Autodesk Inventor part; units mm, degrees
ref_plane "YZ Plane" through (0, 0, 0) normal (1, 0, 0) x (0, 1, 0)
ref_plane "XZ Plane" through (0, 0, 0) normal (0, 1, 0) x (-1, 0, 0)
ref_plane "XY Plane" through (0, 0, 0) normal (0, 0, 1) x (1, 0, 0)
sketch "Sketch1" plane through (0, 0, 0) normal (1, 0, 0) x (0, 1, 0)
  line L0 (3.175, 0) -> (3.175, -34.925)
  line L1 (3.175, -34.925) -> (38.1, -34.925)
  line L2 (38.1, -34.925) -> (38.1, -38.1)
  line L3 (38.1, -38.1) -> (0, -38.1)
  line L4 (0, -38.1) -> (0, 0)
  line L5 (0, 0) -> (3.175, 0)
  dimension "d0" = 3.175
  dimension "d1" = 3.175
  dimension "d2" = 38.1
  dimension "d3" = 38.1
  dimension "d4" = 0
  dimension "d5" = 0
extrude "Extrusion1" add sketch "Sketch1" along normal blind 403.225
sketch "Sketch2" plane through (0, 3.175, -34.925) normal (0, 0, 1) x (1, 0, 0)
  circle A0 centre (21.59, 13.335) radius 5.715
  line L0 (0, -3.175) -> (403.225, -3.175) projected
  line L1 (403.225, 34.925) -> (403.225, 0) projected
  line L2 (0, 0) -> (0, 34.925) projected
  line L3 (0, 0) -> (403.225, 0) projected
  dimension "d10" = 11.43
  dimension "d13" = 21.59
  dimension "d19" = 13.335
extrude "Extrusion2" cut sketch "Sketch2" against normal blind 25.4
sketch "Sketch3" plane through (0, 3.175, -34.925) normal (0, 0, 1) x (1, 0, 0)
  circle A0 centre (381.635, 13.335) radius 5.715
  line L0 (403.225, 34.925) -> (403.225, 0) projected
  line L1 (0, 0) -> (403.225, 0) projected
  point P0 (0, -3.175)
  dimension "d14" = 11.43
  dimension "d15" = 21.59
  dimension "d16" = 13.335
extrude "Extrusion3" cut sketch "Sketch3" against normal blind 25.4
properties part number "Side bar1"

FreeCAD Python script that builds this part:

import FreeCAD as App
import Part
import Sketcher

V = App.Vector
Q = App.Units.Quantity

doc = App.newDocument("Part")
body = doc.addObject("PartDesign::Body", "Body")

# Sketch on YZ plane
sketch1 = doc.addObject("Sketcher::SketchObject", "Sketch")
body.addObject(sketch1)
sketch1.AttachmentSupport = (doc.YZ_Plane, [""])
sketch1.MapMode = "FlatFace"
sketch1.addGeometry(Part.LineSegment(V(3.175, -34.925, 0), V(3.175, 0, 0)), False)
sketch1.addGeometry(Part.LineSegment(V(3.175, 0, 0), V(0, 0, 0)), False)
sketch1.addGeometry(Part.LineSegment(V(0, 0, 0), V(0, -38.1, 0)), False)
sketch1.addGeometry(Part.LineSegment(V(0, -38.1, 0), V(38.1, -38.1, 0)), False)
sketch1.addGeometry(Part.LineSegment(V(38.1, -38.1, 0), V(38.1, -34.925, 0)), False)
sketch1.addGeometry(Part.LineSegment(V(38.1, -34.925, 0), V(3.175, -34.925, 0)), False)
sketch1.addConstraint(Sketcher.Constraint("Coincident", 0, 2, 1, 1))
sketch1.addConstraint(Sketcher.Constraint("Coincident", 1, 2, 2, 1))
sketch1.addConstraint(Sketcher.Constraint("Coincident", 2, 2, 3, 1))
sketch1.addConstraint(Sketcher.Constraint("Coincident", 3, 2, 4, 1))
sketch1.addConstraint(Sketcher.Constraint("Coincident", 4, 2, 5, 1))
sketch1.addConstraint(Sketcher.Constraint("Coincident", 5, 2, 0, 1))
sketch1.addConstraint(Sketcher.Constraint("Vertical", 0))
sketch1.addConstraint(Sketcher.Constraint("Horizontal", 1))
sketch1.addConstraint(Sketcher.Constraint("Vertical", 2))
sketch1.addConstraint(Sketcher.Constraint("Horizontal", 3))
sketch1.addConstraint(Sketcher.Constraint("Vertical", 4))
sketch1.addConstraint(Sketcher.Constraint("Horizontal", 5))
sketch1.addConstraint(Sketcher.Constraint("Coincident", 1, 2, -1, 1))
sketch1.addConstraint(Sketcher.Constraint("Equal", 5, 0))
sketch1.addConstraint(Sketcher.Constraint("Equal", 3, 2))
sketch1.addConstraint(Sketcher.Constraint("DistanceX", 3, 1, 3, 2, Q("1.5 in")))
sketch1.addConstraint(Sketcher.Constraint("DistanceX", 1, 2, 1, 1, Q("0.125 in")))
pad1 = doc.addObject("PartDesign::Pad", "Pad")
body.addObject(pad1)
pad1.Profile = sketch1
pad1.Length = Q("15.875 in")

# Sketch on XY plane
sketch2 = doc.addObject("Sketcher::SketchObject", "Sketch001")
body.addObject(sketch2)
sketch2.AttachmentSupport = (doc.XY_Plane, [""])
sketch2.MapMode = "FlatFace"
sketch2.AttachmentOffset = App.Placement(V(0, 0, -1.375 * 25.4), App.Rotation())
sketch2.addGeometry(Part.Circle(V(21.59, 16.51, 0), V(0, 0, 1), 5.715), False)
sketch2.addConstraint(Sketcher.Constraint("Diameter", 0, Q("0.45 in")))
sketch2.addConstraint(Sketcher.Constraint("DistanceX", -1, 1, 0, 3, Q("0.85 in")))
sketch2.addConstraint(Sketcher.Constraint("DistanceY", -1, 1, 0, 3, Q("0.65 in")))
pocket1 = doc.addObject("PartDesign::Pocket", "Pocket")
body.addObject(pocket1)
pocket1.Profile = sketch2
pocket1.Length = Q("1 in")

# Sketch on XY plane
sketch3 = doc.addObject("Sketcher::SketchObject", "Sketch002")
body.addObject(sketch3)
sketch3.AttachmentSupport = (doc.XY_Plane, [""])
sketch3.MapMode = "FlatFace"
sketch3.AttachmentOffset = App.Placement(V(0, 0, -1.375 * 25.4), App.Rotation())
sketch3.addGeometry(Part.Circle(V(381.635, 16.51, 0), V(0, 0, 1), 5.715), False)
sketch3.addConstraint(Sketcher.Constraint("Diameter", 0, Q("0.45 in")))
sketch3.addConstraint(Sketcher.Constraint("DistanceY", -1, 1, 0, 3, Q("0.65 in")))
sketch3.addConstraint(Sketcher.Constraint("DistanceX", -1, 1, 0, 3, Q("15.025 in")))
pocket2 = doc.addObject("PartDesign::Pocket", "Pocket001")
body.addObject(pocket2)
pocket2.Profile = sketch3
pocket2.Length = Q("1 in")

doc.recompute()
